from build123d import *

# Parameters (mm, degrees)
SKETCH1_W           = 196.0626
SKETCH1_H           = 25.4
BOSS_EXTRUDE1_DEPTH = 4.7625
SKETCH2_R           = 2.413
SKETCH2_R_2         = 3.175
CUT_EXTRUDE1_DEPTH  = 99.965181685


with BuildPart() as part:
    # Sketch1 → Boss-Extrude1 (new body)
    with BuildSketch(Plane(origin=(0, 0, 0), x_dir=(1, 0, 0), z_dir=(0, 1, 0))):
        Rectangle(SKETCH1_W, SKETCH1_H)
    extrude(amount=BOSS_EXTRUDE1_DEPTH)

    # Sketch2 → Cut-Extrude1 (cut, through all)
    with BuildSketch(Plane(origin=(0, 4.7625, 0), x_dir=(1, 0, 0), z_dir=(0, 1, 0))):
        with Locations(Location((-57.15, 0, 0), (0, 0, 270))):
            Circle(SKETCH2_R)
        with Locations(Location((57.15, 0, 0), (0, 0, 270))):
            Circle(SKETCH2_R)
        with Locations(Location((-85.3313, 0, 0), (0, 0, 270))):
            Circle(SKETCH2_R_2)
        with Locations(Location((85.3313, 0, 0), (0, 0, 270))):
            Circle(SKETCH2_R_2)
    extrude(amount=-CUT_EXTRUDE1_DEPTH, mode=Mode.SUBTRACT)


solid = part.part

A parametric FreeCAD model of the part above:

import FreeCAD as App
import Part
import Sketcher

V = App.Vector
Q = App.Units.Quantity


def add_polygon(sketch, points):
    """Adds a closed chain of lines whose ends are joined by coincident constraints."""
    first, n = sketch.GeometryCount, len(points)
    for a, b in zip(points, points[1:] + points[:1]):
        sketch.addGeometry(Part.LineSegment(App.Vector(*a, 0), App.Vector(*b, 0)), False)
    for i in range(n):
        sketch.addConstraint(Sketcher.Constraint("Coincident", first + i, 2, first + (i + 1) % n, 1))

doc = App.newDocument("Part")
params = doc.addObject("Spreadsheet::Sheet", "Params")
for row, (alias, value) in enumerate([
    ("sketch1_height", "1 in"),
    ("sketch1_width", "7.719 in"),
    ("pad1_length", "0.1875 in"),
    ("sketch2_diameter", "0.19 in"),
    ("sketch2_diameter2", "0.25 in"),
], start=1):
    params.set(f"A{row}", alias)
    params.set(f"B{row}", "=" + value)
    params.setAlias(f"B{row}", alias)

body = doc.addObject("PartDesign::Body", "Body")

# Sketch on XZ plane
sketch1 = body.newObject("Sketcher::SketchObject", "Sketch")
sketch1.AttachmentSupport = (doc.getObject("XZ_Plane"), [""])
sketch1.MapMode = "FlatFace"
add_polygon(sketch1, [(-98, -13), (-98, 13), (98, 13), (98, -13)])  # lines 0-3
sketch1.addConstraint([
    Sketcher.Constraint("Vertical", 0),
    Sketcher.Constraint("Horizontal", 1),
    Sketcher.Constraint("Vertical", 2),
    Sketcher.Constraint("Horizontal", 3),
    Sketcher.Constraint("Symmetric", 0, 2, 2, 2, -1, 1),
    Sketcher.Constraint("DistanceY", 0, 1, 0, 2, Q("1 in")),
    Sketcher.Constraint("DistanceX", 1, 1, 1, 2, Q("7.719 in")),
])
sketch1.setExpression("Constraints[9]", "Params.sketch1_height")
sketch1.setExpression("Constraints[10]", "Params.sketch1_width")
pad1 = body.newObject("PartDesign::Pad", "Pad")
pad1.Profile = sketch1
pad1.setExpression("Length", "Params.pad1_length")
pad1.Reversed = True

# Sketch on XZ plane
sketch2 = body.newObject("Sketcher::SketchObject", "Sketch001")
sketch2.AttachmentSupport = (doc.getObject("XZ_Plane"), [""])
sketch2.MapMode = "FlatFace"
sketch2.AttachmentOffset = App.Placement(V(0, 0, -0.1875 * 25.4), App.Rotation())
sketch2.addGeometry([
    Part.Circle(V(-57.1, 0, 0), V(0, 0, 1), 2.4),
    Part.Circle(V(57.1, 0, 0), V(0, 0, 1), 2.4),
    Part.Circle(V(-85.3, 0, 0), V(0, 0, 1), 3.2),
    Part.Circle(V(85.3, 0, 0), V(0, 0, 1), 3.2),
], False)
sketch2.addConstraint([
    Sketcher.Constraint("Equal", 0, 1),
    Sketcher.Constraint("Equal", 2, 3),
    Sketcher.Constraint("Symmetric", 0, 3, 1, 3, -1, 1),
    Sketcher.Constraint("Symmetric", 2, 3, 3, 3, -1, 1),
    Sketcher.Constraint("PointOnObject", 0, 3, -1),
    Sketcher.Constraint("PointOnObject", 2, 3, -1),
    Sketcher.Constraint("Diameter", 0, Q("0.19 in")),
    Sketcher.Constraint("Diameter", 2, Q("0.25 in")),
    Sketcher.Constraint("DistanceX", 0, 3, 1, 3, Q("4.5 in")),
    Sketcher.Constraint("DistanceX", 2, 3, 3, 3, Q("6.719 in")),
])
sketch2.setExpression("Constraints[6]", "Params.sketch2_diameter")
sketch2.setExpression("Constraints[7]", "Params.sketch2_diameter2")
pocket1 = body.newObject("PartDesign::Pocket", "Pocket")
pocket1.Profile = sketch2
pocket1.Type = "ThroughAll"
pocket1.Reversed = True

doc.recompute()
